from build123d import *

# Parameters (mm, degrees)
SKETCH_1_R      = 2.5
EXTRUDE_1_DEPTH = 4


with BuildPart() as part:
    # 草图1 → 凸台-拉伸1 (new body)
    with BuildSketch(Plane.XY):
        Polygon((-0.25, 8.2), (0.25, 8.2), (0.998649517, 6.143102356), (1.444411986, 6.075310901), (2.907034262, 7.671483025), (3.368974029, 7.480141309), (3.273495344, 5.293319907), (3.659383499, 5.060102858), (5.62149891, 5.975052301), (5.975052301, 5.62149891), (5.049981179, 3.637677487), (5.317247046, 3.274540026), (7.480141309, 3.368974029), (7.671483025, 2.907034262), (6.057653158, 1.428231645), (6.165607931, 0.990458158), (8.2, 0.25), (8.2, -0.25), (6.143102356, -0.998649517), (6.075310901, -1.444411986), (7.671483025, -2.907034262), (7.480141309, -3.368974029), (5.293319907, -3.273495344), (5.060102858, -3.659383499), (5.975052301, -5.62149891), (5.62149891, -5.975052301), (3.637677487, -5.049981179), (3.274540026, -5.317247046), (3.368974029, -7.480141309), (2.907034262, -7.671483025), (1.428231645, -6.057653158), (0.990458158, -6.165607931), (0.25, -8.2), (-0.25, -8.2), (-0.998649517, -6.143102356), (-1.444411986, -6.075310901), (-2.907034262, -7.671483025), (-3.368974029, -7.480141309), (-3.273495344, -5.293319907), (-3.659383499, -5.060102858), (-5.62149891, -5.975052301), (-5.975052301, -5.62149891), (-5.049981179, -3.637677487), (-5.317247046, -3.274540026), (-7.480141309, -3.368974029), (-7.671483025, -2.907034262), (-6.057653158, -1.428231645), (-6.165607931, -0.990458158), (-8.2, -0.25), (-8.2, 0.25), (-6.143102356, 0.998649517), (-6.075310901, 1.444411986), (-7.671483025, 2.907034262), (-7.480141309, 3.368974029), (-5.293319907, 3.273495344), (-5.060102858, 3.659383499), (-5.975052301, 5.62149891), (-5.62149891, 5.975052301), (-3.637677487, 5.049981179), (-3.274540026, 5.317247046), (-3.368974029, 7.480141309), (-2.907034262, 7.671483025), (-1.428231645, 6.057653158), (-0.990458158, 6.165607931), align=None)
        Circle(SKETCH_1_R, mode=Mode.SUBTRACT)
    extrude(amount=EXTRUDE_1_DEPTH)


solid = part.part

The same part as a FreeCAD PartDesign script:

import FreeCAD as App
import Part
import Sketcher
Q = App.Units.Quantity

doc = App.newDocument("Part")
params = doc.addObject("Spreadsheet::Sheet", "Params")
for row, (alias, value) in enumerate([
    ("sketch1_diameter", "5 mm"),
    ("sketch1_width", "0.5 mm"),
    ("sketch1_length", "0.5 mm"),
    ("pad1_length", "4 mm"),
], start=1):
    params.set(f"A{row}", alias)
    params.set(f"B{row}", "=" + value)
    params.setAlias(f"B{row}", alias)

body = doc.addObject("PartDesign::Body", "Body")

# Sketch on XY plane
sketch1 = body.newObject("Sketcher::SketchObject", "Sketch")
sketch1.AttachmentSupport = (doc.getObject("XY_Plane"), [""])
sketch1.MapMode = "FlatFace"
sketch1.addGeometry([
    Part.LineSegment(App.Vector(0.25, 8.2, 0), App.Vector(-0.25, 8.2, 0)),  # 0
    Part.LineSegment(App.Vector(-0.25, 8.2, 0), App.Vector(-0.99, 6.17, 0)),  # 1
    Part.LineSegment(App.Vector(-0.99, 6.17, 0), App.Vector(-1.43, 6.06, 0)),  # 2
    Part.LineSegment(App.Vector(-1.43, 6.06, 0), App.Vector(-2.91, 7.67, 0)),  # 3
    Part.LineSegment(App.Vector(-2.91, 7.67, 0), App.Vector(-3.37, 7.48, 0)),  # 4
    Part.LineSegment(App.Vector(-3.37, 7.48, 0), App.Vector(-3.27, 5.32, 0)),  # 5
    Part.LineSegment(App.Vector(-3.27, 5.32, 0), App.Vector(-3.64, 5.05, 0)),  # 6
    Part.LineSegment(App.Vector(-3.64, 5.05, 0), App.Vector(-5.62, 5.98, 0)),  # 7
    Part.LineSegment(App.Vector(-5.62, 5.98, 0), App.Vector(-5.98, 5.62, 0)),  # 8
    Part.LineSegment(App.Vector(-5.98, 5.62, 0), App.Vector(-5.06, 3.66, 0)),  # 9
    Part.LineSegment(App.Vector(-5.06, 3.66, 0), App.Vector(-5.29, 3.27, 0)),  # 10
    Part.LineSegment(App.Vector(-5.29, 3.27, 0), App.Vector(-7.48, 3.37, 0)),  # 11
    Part.LineSegment(App.Vector(-7.48, 3.37, 0), App.Vector(-7.67, 2.91, 0)),  # 12
    Part.LineSegment(App.Vector(-7.67, 2.91, 0), App.Vector(-6.08, 1.44, 0)),  # 13
    Part.LineSegment(App.Vector(-6.08, 1.44, 0), App.Vector(-6.14, 1, 0)),  # 14
    Part.LineSegment(App.Vector(-6.14, 1, 0), App.Vector(-8.2, 0.25, 0)),  # 15
    Part.LineSegment(App.Vector(-8.2, 0.25, 0), App.Vector(-8.2, -0.25, 0)),  # 16
    Part.LineSegment(App.Vector(-8.2, -0.25, 0), App.Vector(-6.17, -0.99, 0)),  # 17
    Part.LineSegment(App.Vector(-6.17, -0.99, 0), App.Vector(-6.06, -1.43, 0)),  # 18
    Part.LineSegment(App.Vector(-6.06, -1.43, 0), App.Vector(-7.67, -2.91, 0)),  # 19
    Part.LineSegment(App.Vector(-7.67, -2.91, 0), App.Vector(-7.48, -3.37, 0)),  # 20
    Part.LineSegment(App.Vector(-7.48, -3.37, 0), App.Vector(-5.32, -3.27, 0)),  # 21
    Part.LineSegment(App.Vector(-5.32, -3.27, 0), App.Vector(-5.05, -3.64, 0)),  # 22
    Part.LineSegment(App.Vector(-5.05, -3.64, 0), App.Vector(-5.98, -5.62, 0)),  # 23
    Part.LineSegment(App.Vector(-5.98, -5.62, 0), App.Vector(-5.62, -5.98, 0)),  # 24
    Part.LineSegment(App.Vector(-5.62, -5.98, 0), App.Vector(-3.66, -5.06, 0)),  # 25
    Part.LineSegment(App.Vector(-3.66, -5.06, 0), App.Vector(-3.27, -5.29, 0)),  # 26
    Part.LineSegment(App.Vector(-3.27, -5.29, 0), App.Vector(-3.37, -7.48, 0)),  # 27
    Part.LineSegment(App.Vector(-3.37, -7.48, 0), App.Vector(-2.91, -7.67, 0)),  # 28
    Part.LineSegment(App.Vector(-2.91, -7.67, 0), App.Vector(-1.44, -6.08, 0)),  # 29
    Part.LineSegment(App.Vector(-1.44, -6.08, 0), App.Vector(-1, -6.14, 0)),  # 30
    Part.LineSegment(App.Vector(-1, -6.14, 0), App.Vector(-0.25, -8.2, 0)),  # 31
    Part.LineSegment(App.Vector(-0.25, -8.2, 0), App.Vector(0.25, -8.2, 0)),  # 32
    Part.LineSegment(App.Vector(0.25, -8.2, 0), App.Vector(0.99, -6.17, 0)),  # 33
    Part.LineSegment(App.Vector(0.99, -6.17, 0), App.Vector(1.43, -6.06, 0)),  # 34
    Part.LineSegment(App.Vector(1.43, -6.06, 0), App.Vector(2.91, -7.67, 0)),  # 35
    Part.LineSegment(App.Vector(2.91, -7.67, 0), App.Vector(3.37, -7.48, 0)),  # 36
    Part.LineSegment(App.Vector(3.37, -7.48, 0), App.Vector(3.27, -5.32, 0)),  # 37
    Part.LineSegment(App.Vector(3.27, -5.32, 0), App.Vector(3.64, -5.05, 0)),  # 38
    Part.LineSegment(App.Vector(3.64, -5.05, 0), App.Vector(5.62, -5.98, 0)),  # 39
    Part.LineSegment(App.Vector(5.62, -5.98, 0), App.Vector(5.98, -5.62, 0)),  # 40
    Part.LineSegment(App.Vector(5.98, -5.62, 0), App.Vector(5.06, -3.66, 0)),  # 41
    Part.LineSegment(App.Vector(5.06, -3.66, 0), App.Vector(5.29, -3.27, 0)),  # 42
    Part.LineSegment(App.Vector(5.29, -3.27, 0), App.Vector(7.48, -3.37, 0)),  # 43
    Part.LineSegment(App.Vector(7.48, -3.37, 0), App.Vector(7.67, -2.91, 0)),  # 44
    Part.LineSegment(App.Vector(7.67, -2.91, 0), App.Vector(6.08, -1.44, 0)),  # 45
    Part.LineSegment(App.Vector(6.08, -1.44, 0), App.Vector(6.14, -1, 0)),  # 46
    Part.LineSegment(App.Vector(6.14, -1, 0), App.Vector(8.2, -0.25, 0)),  # 47
    Part.LineSegment(App.Vector(8.2, -0.25, 0), App.Vector(8.2, 0.25, 0)),  # 48
    Part.LineSegment(App.Vector(8.2, 0.25, 0), App.Vector(6.17, 0.99, 0)),  # 49
    Part.LineSegment(App.Vector(6.17, 0.99, 0), App.Vector(6.06, 1.43, 0)),  # 50
    Part.LineSegment(App.Vector(6.06, 1.43, 0), App.Vector(7.67, 2.91, 0)),  # 51
    Part.LineSegment(App.Vector(7.67, 2.91, 0), App.Vector(7.48, 3.37, 0)),  # 52
    Part.LineSegment(App.Vector(7.48, 3.37, 0), App.Vector(5.32, 3.27, 0)),  # 53
    Part.LineSegment(App.Vector(5.32, 3.27, 0), App.Vector(5.05, 3.64, 0)),  # 54
    Part.LineSegment(App.Vector(5.05, 3.64, 0), App.Vector(5.98, 5.62, 0)),  # 55
    Part.LineSegment(App.Vector(5.98, 5.62, 0), App.Vector(5.62, 5.98, 0)),  # 56
    Part.LineSegment(App.Vector(5.62, 5.98, 0), App.Vector(3.66, 5.06, 0)),  # 57
    Part.LineSegment(App.Vector(3.66, 5.06, 0), App.Vector(3.27, 5.29, 0)),  # 58
    Part.LineSegment(App.Vector(3.27, 5.29, 0), App.Vector(3.37, 7.48, 0)),  # 59
    Part.LineSegment(App.Vector(3.37, 7.48, 0), App.Vector(2.91, 7.67, 0)),  # 60
    Part.LineSegment(App.Vector(2.91, 7.67, 0), App.Vector(1.44, 6.08, 0)),  # 61
    Part.LineSegment(App.Vector(1.44, 6.08, 0), App.Vector(1, 6.14, 0)),  # 62
    Part.LineSegment(App.Vector(1, 6.14, 0), App.Vector(0.25, 8.2, 0)),  # 63
    Part.Circle(App.Vector(0, 0, 0), App.Vector(0, 0, 1), 2.5),  # 64
], False)
sketch1.addConstraint([
    Sketcher.Constraint("Coincident", 0, 2, 1, 1),
    Sketcher.Constraint("Coincident", 1, 2, 2, 1),
    Sketcher.Constraint("Coincident", 2, 2, 3, 1),
    Sketcher.Constraint("Coincident", 3, 2, 4, 1),
    Sketcher.Constraint("Coincident", 4, 2, 5, 1),
    Sketcher.Constraint("Coincident", 5, 2, 6, 1),
    Sketcher.Constraint("Coincident", 6, 2, 7, 1),
    Sketcher.Constraint("Coincident", 7, 2, 8, 1),
    Sketcher.Constraint("Coincident", 8, 2, 9, 1),
    Sketcher.Constraint("Coincident", 9, 2, 10, 1),
    Sketcher.Constraint("Coincident", 10, 2, 11, 1),
    Sketcher.Constraint("Coincident", 11, 2, 12, 1),
    Sketcher.Constraint("Coincident", 12, 2, 13, 1),
    Sketcher.Constraint("Coincident", 13, 2, 14, 1),
    Sketcher.Constraint("Coincident", 14, 2, 15, 1),
    Sketcher.Constraint("Coincident", 15, 2, 16, 1),
    Sketcher.Constraint("Coincident", 16, 2, 17, 1),
    Sketcher.Constraint("Coincident", 17, 2, 18, 1),
    Sketcher.Constraint("Coincident", 18, 2, 19, 1),
    Sketcher.Constraint("Coincident", 19, 2, 20, 1),
    Sketcher.Constraint("Coincident", 20, 2, 21, 1),
    Sketcher.Constraint("Coincident", 21, 2, 22, 1),
    Sketcher.Constraint("Coincident", 22, 2, 23, 1),
    Sketcher.Constraint("Coincident", 23, 2, 24, 1),
    Sketcher.Constraint("Coincident", 24, 2, 25, 1),
    Sketcher.Constraint("Coincident", 25, 2, 26, 1),
    Sketcher.Constraint("Coincident", 26, 2, 27, 1),
    Sketcher.Constraint("Coincident", 27, 2, 28, 1),
    Sketcher.Constraint("Coincident", 28, 2, 29, 1),
    Sketcher.Constraint("Coincident", 29, 2, 30, 1),
    Sketcher.Constraint("Coincident", 30, 2, 31, 1),
    Sketcher.Constraint("Coincident", 31, 2, 32, 1),
    Sketcher.Constraint("Coincident", 32, 2, 33, 1),
    Sketcher.Constraint("Coincident", 33, 2, 34, 1),
    Sketcher.Constraint("Coincident", 34, 2, 35, 1),
    Sketcher.Constraint("Coincident", 35, 2, 36, 1),
    Sketcher.Constraint("Coincident", 36, 2, 37, 1),
    Sketcher.Constraint("Coincident", 37, 2, 38, 1),
    Sketcher.Constraint("Coincident", 38, 2, 39, 1),
    Sketcher.Constraint("Coincident", 39, 2, 40, 1),
    Sketcher.Constraint("Coincident", 40, 2, 41, 1),
    Sketcher.Constraint("Coincident", 41, 2, 42, 1),
    Sketcher.Constraint("Coincident", 42, 2, 43, 1),
    Sketcher.Constraint("Coincident", 43, 2, 44, 1),
    Sketcher.Constraint("Coincident", 44, 2, 45, 1),
    Sketcher.Constraint("Coincident", 45, 2, 46, 1),
    Sketcher.Constraint("Coincident", 46, 2, 47, 1),
    Sketcher.Constraint("Coincident", 47, 2, 48, 1),
    Sketcher.Constraint("Coincident", 48, 2, 49, 1),
    Sketcher.Constraint("Coincident", 49, 2, 50, 1),
    Sketcher.Constraint("Coincident", 50, 2, 51, 1),
    Sketcher.Constraint("Coincident", 51, 2, 52, 1),
    Sketcher.Constraint("Coincident", 52, 2, 53, 1),
    Sketcher.Constraint("Coincident", 53, 2, 54, 1),
    Sketcher.Constraint("Coincident", 54, 2, 55, 1),
    Sketcher.Constraint("Coincident", 55, 2, 56, 1),
    Sketcher.Constraint("Coincident", 56, 2, 57, 1),
    Sketcher.Constraint("Coincident", 57, 2, 58, 1),
    Sketcher.Constraint("Coincident", 58, 2, 59, 1),
    Sketcher.Constraint("Coincident", 59, 2, 60, 1),
    Sketcher.Constraint("Coincident", 60, 2, 61, 1),
    Sketcher.Constraint("Coincident", 61, 2, 62, 1),
    Sketcher.Constraint("Coincident", 62, 2, 63, 1),
    Sketcher.Constraint("Coincident", 63, 2, 0, 1),
    Sketcher.Constraint("Horizontal", 0),
    Sketcher.Constraint("Vertical", 16),
    Sketcher.Constraint("Horizontal", 32),
    Sketcher.Constraint("Vertical", 48),
    Sketcher.Constraint("Coincident", 64, 3, -1, 1),
    Sketcher.Constraint("Symmetric", 0, 2, 32, 2, -1, 1),
    Sketcher.Constraint("Symmetric", 1, 2, 33, 2, -1, 1),
    Sketcher.Constraint("Symmetric", 2, 2, 34, 2, -1, 1),
    Sketcher.Constraint("Symmetric", 3, 2, 35, 2, -1, 1),
    Sketcher.Constraint("Symmetric", 4, 2, 36, 2, -1, 1),
    Sketcher.Constraint("Symmetric", 5, 2, 37, 2, -1, 1),
    Sketcher.Constraint("Symmetric", 6, 2, 38, 2, -1, 1),
    Sketcher.Constraint("Symmetric", 7, 2, 39, 2, -1, 1),
    Sketcher.Constraint("Symmetric", 8, 2, 40, 2, -1, 1),
    Sketcher.Constraint("Symmetric", 9, 2, 41, 2, -1, 1),
    Sketcher.Constraint("Symmetric", 10, 2, 42, 2, -1, 1),
    Sketcher.Constraint("Symmetric", 11, 2, 43, 2, -1, 1),
    Sketcher.Constraint("Symmetric", 12, 2, 44, 2, -1, 1),
    Sketcher.Constraint("Symmetric", 13, 2, 45, 2, -1, 1),
    Sketcher.Constraint("Symmetric", 14, 2, 46, 2, -1, 1),
    Sketcher.Constraint("Symmetric", 15, 2, 47, 2, -1, 1),
    Sketcher.Constraint("Symmetric", 17, 2, 49, 2, -1, 1),
    Sketcher.Constraint("Symmetric", 18, 2, 50, 2, -1, 1),
    Sketcher.Constraint("Symmetric", 19, 2, 51, 2, -1, 1),
    Sketcher.Constraint("Symmetric", 20, 2, 52, 2, -1, 1),
    Sketcher.Constraint("Symmetric", 21, 2, 53, 2, -1, 1),
    Sketcher.Constraint("Symmetric", 22, 2, 54, 2, -1, 1),
    Sketcher.Constraint("Symmetric", 23, 2, 55, 2, -1, 1),
    Sketcher.Constraint("Symmetric", 24, 2, 56, 2, -1, 1),
    Sketcher.Constraint("Symmetric", 25, 2, 57, 2, -1, 1),
    Sketcher.Constraint("Symmetric", 26, 2, 58, 2, -1, 1),
    Sketcher.Constraint("Symmetric", 27, 2, 59, 2, -1, 1),
    Sketcher.Constraint("Symmetric", 28, 2, 60, 2, -1, 1),
    Sketcher.Constraint("Symmetric", 29, 2, 61, 2, -1, 1),
    Sketcher.Constraint("Symmetric", 30, 2, 62, 2, -1, 1),
    Sketcher.Constraint("Symmetric", 28, 2, 35, 2, -2),
    Sketcher.Constraint("Symmetric", 27, 2, 36, 2, -2),
    Sketcher.Constraint("Symmetric", 24, 2, 39, 2, -2),
    Sketcher.Constraint("Symmetric", 23, 2, 40, 2, -2),
    Sketcher.Constraint("Symmetric", 20, 2, 43, 2, -2),
    Sketcher.Constraint("Symmetric", 19, 2, 44, 2, -2),
    Sketcher.Constraint("Perpendicular", 1, 17),
    Sketcher.Constraint("Perpendicular", 2, 18),
    Sketcher.Constraint("Perpendicular", 3, 19),
    Sketcher.Constraint("Perpendicular", 4, 20),
    Sketcher.Constraint("Perpendicular", 5, 21),
    Sketcher.Constraint("Perpendicular", 6, 22),
    Sketcher.Constraint("Perpendicular", 7, 23),
    Sketcher.Constraint("Perpendicular", 8, 24),
    Sketcher.Constraint("Perpendicular", 9, 25),
    Sketcher.Constraint("Perpendicular", 10, 26),
    Sketcher.Constraint("Perpendicular", 11, 27),
    Sketcher.Constraint("Perpendicular", 13, 29),
    Sketcher.Constraint("Perpendicular", 14, 30),
    Sketcher.Constraint("Perpendicular", 15, 31),
    Sketcher.Constraint("Perpendicular", 33, 49),
    Sketcher.Constraint("Perpendicular", 47, 63),
    Sketcher.Constraint("Horizontal", 16, 2, 47, 2),
    Sketcher.Constraint("Vertical", 0, 2, 31, 2),
    Sketcher.Constraint("Equal", 32, 16),
    Sketcher.Constraint("Equal", 1, 5),
    Sketcher.Constraint("Equal", 2, 6),
    Sketcher.Constraint("Equal", 3, 7),
    Sketcher.Constraint("Equal", 4, 8),
    Sketcher.Constraint("Equal", 5, 9),
    Sketcher.Constraint("Equal", 6, 10),
    Sketcher.Constraint("Equal", 7, 11),
    Sketcher.Constraint("Equal", 8, 12),
    Sketcher.Constraint("Equal", 9, 13),
    Sketcher.Constraint("Equal", 10, 14),
    Sketcher.Constraint("Equal", 11, 15),
    Sketcher.Constraint("Equal", 13, 17),
    Sketcher.Constraint("Equal", 14, 18),
    Sketcher.Constraint("Equal", 15, 19),
    Sketcher.Constraint("Equal", 17, 21),
    Sketcher.Constraint("Equal", 18, 22),
    Sketcher.Constraint("Equal", 19, 23),
    Sketcher.Constraint("Equal", 21, 25),
    Sketcher.Constraint("Equal", 25, 29),
    Sketcher.Constraint("Diameter", 64, Q("5 mm")),
    Sketcher.Constraint("Angle", 1, Q("-110 deg")),
    Sketcher.Constraint("Angle", 7, Q("155 deg")),
    Sketcher.Constraint("Angle", 9, Q("-65 deg")),
    Sketcher.Constraint("Angle", 15, Q("-160 deg")),
    Sketcher.Constraint("DistanceX", 0, 2, 0, 1, Q("0.5 mm")),
    Sketcher.Constraint("Angle", 3, Q("132.5 deg")),
    Sketcher.Constraint("Angle", 4, Q("-157.5 deg")),
    Sketcher.Constraint("Angle", 5, Q("-87.5 deg")),
    Sketcher.Constraint("Angle", 11, Q("177.5 deg")),
    Sketcher.Constraint("Angle", 13, Q("-42.5 deg")),
    Sketcher.Constraint("Distance", 4, Q("0.5 mm")),
    Sketcher.Constraint("DistanceY", -1, 1, 0, 2, Q("8.2 mm")),
    Sketcher.Constraint("DistanceX", 1, 2, -1, 1, Q("0.990458 mm")),
    Sketcher.Constraint("DistanceX", 2, 2, -1, 1, Q("1.428232 mm")),
])
sketch1.setExpression("Constraints[143]", "Params.sketch1_diameter")
sketch1.setExpression("Constraints[148]", "Params.sketch1_width")
sketch1.setExpression("Constraints[154]", "Params.sketch1_length")
pad1 = body.newObject("PartDesign::Pad", "Pad")
pad1.Profile = sketch1
pad1.setExpression("Length", "Params.pad1_length")

doc.recompute()
